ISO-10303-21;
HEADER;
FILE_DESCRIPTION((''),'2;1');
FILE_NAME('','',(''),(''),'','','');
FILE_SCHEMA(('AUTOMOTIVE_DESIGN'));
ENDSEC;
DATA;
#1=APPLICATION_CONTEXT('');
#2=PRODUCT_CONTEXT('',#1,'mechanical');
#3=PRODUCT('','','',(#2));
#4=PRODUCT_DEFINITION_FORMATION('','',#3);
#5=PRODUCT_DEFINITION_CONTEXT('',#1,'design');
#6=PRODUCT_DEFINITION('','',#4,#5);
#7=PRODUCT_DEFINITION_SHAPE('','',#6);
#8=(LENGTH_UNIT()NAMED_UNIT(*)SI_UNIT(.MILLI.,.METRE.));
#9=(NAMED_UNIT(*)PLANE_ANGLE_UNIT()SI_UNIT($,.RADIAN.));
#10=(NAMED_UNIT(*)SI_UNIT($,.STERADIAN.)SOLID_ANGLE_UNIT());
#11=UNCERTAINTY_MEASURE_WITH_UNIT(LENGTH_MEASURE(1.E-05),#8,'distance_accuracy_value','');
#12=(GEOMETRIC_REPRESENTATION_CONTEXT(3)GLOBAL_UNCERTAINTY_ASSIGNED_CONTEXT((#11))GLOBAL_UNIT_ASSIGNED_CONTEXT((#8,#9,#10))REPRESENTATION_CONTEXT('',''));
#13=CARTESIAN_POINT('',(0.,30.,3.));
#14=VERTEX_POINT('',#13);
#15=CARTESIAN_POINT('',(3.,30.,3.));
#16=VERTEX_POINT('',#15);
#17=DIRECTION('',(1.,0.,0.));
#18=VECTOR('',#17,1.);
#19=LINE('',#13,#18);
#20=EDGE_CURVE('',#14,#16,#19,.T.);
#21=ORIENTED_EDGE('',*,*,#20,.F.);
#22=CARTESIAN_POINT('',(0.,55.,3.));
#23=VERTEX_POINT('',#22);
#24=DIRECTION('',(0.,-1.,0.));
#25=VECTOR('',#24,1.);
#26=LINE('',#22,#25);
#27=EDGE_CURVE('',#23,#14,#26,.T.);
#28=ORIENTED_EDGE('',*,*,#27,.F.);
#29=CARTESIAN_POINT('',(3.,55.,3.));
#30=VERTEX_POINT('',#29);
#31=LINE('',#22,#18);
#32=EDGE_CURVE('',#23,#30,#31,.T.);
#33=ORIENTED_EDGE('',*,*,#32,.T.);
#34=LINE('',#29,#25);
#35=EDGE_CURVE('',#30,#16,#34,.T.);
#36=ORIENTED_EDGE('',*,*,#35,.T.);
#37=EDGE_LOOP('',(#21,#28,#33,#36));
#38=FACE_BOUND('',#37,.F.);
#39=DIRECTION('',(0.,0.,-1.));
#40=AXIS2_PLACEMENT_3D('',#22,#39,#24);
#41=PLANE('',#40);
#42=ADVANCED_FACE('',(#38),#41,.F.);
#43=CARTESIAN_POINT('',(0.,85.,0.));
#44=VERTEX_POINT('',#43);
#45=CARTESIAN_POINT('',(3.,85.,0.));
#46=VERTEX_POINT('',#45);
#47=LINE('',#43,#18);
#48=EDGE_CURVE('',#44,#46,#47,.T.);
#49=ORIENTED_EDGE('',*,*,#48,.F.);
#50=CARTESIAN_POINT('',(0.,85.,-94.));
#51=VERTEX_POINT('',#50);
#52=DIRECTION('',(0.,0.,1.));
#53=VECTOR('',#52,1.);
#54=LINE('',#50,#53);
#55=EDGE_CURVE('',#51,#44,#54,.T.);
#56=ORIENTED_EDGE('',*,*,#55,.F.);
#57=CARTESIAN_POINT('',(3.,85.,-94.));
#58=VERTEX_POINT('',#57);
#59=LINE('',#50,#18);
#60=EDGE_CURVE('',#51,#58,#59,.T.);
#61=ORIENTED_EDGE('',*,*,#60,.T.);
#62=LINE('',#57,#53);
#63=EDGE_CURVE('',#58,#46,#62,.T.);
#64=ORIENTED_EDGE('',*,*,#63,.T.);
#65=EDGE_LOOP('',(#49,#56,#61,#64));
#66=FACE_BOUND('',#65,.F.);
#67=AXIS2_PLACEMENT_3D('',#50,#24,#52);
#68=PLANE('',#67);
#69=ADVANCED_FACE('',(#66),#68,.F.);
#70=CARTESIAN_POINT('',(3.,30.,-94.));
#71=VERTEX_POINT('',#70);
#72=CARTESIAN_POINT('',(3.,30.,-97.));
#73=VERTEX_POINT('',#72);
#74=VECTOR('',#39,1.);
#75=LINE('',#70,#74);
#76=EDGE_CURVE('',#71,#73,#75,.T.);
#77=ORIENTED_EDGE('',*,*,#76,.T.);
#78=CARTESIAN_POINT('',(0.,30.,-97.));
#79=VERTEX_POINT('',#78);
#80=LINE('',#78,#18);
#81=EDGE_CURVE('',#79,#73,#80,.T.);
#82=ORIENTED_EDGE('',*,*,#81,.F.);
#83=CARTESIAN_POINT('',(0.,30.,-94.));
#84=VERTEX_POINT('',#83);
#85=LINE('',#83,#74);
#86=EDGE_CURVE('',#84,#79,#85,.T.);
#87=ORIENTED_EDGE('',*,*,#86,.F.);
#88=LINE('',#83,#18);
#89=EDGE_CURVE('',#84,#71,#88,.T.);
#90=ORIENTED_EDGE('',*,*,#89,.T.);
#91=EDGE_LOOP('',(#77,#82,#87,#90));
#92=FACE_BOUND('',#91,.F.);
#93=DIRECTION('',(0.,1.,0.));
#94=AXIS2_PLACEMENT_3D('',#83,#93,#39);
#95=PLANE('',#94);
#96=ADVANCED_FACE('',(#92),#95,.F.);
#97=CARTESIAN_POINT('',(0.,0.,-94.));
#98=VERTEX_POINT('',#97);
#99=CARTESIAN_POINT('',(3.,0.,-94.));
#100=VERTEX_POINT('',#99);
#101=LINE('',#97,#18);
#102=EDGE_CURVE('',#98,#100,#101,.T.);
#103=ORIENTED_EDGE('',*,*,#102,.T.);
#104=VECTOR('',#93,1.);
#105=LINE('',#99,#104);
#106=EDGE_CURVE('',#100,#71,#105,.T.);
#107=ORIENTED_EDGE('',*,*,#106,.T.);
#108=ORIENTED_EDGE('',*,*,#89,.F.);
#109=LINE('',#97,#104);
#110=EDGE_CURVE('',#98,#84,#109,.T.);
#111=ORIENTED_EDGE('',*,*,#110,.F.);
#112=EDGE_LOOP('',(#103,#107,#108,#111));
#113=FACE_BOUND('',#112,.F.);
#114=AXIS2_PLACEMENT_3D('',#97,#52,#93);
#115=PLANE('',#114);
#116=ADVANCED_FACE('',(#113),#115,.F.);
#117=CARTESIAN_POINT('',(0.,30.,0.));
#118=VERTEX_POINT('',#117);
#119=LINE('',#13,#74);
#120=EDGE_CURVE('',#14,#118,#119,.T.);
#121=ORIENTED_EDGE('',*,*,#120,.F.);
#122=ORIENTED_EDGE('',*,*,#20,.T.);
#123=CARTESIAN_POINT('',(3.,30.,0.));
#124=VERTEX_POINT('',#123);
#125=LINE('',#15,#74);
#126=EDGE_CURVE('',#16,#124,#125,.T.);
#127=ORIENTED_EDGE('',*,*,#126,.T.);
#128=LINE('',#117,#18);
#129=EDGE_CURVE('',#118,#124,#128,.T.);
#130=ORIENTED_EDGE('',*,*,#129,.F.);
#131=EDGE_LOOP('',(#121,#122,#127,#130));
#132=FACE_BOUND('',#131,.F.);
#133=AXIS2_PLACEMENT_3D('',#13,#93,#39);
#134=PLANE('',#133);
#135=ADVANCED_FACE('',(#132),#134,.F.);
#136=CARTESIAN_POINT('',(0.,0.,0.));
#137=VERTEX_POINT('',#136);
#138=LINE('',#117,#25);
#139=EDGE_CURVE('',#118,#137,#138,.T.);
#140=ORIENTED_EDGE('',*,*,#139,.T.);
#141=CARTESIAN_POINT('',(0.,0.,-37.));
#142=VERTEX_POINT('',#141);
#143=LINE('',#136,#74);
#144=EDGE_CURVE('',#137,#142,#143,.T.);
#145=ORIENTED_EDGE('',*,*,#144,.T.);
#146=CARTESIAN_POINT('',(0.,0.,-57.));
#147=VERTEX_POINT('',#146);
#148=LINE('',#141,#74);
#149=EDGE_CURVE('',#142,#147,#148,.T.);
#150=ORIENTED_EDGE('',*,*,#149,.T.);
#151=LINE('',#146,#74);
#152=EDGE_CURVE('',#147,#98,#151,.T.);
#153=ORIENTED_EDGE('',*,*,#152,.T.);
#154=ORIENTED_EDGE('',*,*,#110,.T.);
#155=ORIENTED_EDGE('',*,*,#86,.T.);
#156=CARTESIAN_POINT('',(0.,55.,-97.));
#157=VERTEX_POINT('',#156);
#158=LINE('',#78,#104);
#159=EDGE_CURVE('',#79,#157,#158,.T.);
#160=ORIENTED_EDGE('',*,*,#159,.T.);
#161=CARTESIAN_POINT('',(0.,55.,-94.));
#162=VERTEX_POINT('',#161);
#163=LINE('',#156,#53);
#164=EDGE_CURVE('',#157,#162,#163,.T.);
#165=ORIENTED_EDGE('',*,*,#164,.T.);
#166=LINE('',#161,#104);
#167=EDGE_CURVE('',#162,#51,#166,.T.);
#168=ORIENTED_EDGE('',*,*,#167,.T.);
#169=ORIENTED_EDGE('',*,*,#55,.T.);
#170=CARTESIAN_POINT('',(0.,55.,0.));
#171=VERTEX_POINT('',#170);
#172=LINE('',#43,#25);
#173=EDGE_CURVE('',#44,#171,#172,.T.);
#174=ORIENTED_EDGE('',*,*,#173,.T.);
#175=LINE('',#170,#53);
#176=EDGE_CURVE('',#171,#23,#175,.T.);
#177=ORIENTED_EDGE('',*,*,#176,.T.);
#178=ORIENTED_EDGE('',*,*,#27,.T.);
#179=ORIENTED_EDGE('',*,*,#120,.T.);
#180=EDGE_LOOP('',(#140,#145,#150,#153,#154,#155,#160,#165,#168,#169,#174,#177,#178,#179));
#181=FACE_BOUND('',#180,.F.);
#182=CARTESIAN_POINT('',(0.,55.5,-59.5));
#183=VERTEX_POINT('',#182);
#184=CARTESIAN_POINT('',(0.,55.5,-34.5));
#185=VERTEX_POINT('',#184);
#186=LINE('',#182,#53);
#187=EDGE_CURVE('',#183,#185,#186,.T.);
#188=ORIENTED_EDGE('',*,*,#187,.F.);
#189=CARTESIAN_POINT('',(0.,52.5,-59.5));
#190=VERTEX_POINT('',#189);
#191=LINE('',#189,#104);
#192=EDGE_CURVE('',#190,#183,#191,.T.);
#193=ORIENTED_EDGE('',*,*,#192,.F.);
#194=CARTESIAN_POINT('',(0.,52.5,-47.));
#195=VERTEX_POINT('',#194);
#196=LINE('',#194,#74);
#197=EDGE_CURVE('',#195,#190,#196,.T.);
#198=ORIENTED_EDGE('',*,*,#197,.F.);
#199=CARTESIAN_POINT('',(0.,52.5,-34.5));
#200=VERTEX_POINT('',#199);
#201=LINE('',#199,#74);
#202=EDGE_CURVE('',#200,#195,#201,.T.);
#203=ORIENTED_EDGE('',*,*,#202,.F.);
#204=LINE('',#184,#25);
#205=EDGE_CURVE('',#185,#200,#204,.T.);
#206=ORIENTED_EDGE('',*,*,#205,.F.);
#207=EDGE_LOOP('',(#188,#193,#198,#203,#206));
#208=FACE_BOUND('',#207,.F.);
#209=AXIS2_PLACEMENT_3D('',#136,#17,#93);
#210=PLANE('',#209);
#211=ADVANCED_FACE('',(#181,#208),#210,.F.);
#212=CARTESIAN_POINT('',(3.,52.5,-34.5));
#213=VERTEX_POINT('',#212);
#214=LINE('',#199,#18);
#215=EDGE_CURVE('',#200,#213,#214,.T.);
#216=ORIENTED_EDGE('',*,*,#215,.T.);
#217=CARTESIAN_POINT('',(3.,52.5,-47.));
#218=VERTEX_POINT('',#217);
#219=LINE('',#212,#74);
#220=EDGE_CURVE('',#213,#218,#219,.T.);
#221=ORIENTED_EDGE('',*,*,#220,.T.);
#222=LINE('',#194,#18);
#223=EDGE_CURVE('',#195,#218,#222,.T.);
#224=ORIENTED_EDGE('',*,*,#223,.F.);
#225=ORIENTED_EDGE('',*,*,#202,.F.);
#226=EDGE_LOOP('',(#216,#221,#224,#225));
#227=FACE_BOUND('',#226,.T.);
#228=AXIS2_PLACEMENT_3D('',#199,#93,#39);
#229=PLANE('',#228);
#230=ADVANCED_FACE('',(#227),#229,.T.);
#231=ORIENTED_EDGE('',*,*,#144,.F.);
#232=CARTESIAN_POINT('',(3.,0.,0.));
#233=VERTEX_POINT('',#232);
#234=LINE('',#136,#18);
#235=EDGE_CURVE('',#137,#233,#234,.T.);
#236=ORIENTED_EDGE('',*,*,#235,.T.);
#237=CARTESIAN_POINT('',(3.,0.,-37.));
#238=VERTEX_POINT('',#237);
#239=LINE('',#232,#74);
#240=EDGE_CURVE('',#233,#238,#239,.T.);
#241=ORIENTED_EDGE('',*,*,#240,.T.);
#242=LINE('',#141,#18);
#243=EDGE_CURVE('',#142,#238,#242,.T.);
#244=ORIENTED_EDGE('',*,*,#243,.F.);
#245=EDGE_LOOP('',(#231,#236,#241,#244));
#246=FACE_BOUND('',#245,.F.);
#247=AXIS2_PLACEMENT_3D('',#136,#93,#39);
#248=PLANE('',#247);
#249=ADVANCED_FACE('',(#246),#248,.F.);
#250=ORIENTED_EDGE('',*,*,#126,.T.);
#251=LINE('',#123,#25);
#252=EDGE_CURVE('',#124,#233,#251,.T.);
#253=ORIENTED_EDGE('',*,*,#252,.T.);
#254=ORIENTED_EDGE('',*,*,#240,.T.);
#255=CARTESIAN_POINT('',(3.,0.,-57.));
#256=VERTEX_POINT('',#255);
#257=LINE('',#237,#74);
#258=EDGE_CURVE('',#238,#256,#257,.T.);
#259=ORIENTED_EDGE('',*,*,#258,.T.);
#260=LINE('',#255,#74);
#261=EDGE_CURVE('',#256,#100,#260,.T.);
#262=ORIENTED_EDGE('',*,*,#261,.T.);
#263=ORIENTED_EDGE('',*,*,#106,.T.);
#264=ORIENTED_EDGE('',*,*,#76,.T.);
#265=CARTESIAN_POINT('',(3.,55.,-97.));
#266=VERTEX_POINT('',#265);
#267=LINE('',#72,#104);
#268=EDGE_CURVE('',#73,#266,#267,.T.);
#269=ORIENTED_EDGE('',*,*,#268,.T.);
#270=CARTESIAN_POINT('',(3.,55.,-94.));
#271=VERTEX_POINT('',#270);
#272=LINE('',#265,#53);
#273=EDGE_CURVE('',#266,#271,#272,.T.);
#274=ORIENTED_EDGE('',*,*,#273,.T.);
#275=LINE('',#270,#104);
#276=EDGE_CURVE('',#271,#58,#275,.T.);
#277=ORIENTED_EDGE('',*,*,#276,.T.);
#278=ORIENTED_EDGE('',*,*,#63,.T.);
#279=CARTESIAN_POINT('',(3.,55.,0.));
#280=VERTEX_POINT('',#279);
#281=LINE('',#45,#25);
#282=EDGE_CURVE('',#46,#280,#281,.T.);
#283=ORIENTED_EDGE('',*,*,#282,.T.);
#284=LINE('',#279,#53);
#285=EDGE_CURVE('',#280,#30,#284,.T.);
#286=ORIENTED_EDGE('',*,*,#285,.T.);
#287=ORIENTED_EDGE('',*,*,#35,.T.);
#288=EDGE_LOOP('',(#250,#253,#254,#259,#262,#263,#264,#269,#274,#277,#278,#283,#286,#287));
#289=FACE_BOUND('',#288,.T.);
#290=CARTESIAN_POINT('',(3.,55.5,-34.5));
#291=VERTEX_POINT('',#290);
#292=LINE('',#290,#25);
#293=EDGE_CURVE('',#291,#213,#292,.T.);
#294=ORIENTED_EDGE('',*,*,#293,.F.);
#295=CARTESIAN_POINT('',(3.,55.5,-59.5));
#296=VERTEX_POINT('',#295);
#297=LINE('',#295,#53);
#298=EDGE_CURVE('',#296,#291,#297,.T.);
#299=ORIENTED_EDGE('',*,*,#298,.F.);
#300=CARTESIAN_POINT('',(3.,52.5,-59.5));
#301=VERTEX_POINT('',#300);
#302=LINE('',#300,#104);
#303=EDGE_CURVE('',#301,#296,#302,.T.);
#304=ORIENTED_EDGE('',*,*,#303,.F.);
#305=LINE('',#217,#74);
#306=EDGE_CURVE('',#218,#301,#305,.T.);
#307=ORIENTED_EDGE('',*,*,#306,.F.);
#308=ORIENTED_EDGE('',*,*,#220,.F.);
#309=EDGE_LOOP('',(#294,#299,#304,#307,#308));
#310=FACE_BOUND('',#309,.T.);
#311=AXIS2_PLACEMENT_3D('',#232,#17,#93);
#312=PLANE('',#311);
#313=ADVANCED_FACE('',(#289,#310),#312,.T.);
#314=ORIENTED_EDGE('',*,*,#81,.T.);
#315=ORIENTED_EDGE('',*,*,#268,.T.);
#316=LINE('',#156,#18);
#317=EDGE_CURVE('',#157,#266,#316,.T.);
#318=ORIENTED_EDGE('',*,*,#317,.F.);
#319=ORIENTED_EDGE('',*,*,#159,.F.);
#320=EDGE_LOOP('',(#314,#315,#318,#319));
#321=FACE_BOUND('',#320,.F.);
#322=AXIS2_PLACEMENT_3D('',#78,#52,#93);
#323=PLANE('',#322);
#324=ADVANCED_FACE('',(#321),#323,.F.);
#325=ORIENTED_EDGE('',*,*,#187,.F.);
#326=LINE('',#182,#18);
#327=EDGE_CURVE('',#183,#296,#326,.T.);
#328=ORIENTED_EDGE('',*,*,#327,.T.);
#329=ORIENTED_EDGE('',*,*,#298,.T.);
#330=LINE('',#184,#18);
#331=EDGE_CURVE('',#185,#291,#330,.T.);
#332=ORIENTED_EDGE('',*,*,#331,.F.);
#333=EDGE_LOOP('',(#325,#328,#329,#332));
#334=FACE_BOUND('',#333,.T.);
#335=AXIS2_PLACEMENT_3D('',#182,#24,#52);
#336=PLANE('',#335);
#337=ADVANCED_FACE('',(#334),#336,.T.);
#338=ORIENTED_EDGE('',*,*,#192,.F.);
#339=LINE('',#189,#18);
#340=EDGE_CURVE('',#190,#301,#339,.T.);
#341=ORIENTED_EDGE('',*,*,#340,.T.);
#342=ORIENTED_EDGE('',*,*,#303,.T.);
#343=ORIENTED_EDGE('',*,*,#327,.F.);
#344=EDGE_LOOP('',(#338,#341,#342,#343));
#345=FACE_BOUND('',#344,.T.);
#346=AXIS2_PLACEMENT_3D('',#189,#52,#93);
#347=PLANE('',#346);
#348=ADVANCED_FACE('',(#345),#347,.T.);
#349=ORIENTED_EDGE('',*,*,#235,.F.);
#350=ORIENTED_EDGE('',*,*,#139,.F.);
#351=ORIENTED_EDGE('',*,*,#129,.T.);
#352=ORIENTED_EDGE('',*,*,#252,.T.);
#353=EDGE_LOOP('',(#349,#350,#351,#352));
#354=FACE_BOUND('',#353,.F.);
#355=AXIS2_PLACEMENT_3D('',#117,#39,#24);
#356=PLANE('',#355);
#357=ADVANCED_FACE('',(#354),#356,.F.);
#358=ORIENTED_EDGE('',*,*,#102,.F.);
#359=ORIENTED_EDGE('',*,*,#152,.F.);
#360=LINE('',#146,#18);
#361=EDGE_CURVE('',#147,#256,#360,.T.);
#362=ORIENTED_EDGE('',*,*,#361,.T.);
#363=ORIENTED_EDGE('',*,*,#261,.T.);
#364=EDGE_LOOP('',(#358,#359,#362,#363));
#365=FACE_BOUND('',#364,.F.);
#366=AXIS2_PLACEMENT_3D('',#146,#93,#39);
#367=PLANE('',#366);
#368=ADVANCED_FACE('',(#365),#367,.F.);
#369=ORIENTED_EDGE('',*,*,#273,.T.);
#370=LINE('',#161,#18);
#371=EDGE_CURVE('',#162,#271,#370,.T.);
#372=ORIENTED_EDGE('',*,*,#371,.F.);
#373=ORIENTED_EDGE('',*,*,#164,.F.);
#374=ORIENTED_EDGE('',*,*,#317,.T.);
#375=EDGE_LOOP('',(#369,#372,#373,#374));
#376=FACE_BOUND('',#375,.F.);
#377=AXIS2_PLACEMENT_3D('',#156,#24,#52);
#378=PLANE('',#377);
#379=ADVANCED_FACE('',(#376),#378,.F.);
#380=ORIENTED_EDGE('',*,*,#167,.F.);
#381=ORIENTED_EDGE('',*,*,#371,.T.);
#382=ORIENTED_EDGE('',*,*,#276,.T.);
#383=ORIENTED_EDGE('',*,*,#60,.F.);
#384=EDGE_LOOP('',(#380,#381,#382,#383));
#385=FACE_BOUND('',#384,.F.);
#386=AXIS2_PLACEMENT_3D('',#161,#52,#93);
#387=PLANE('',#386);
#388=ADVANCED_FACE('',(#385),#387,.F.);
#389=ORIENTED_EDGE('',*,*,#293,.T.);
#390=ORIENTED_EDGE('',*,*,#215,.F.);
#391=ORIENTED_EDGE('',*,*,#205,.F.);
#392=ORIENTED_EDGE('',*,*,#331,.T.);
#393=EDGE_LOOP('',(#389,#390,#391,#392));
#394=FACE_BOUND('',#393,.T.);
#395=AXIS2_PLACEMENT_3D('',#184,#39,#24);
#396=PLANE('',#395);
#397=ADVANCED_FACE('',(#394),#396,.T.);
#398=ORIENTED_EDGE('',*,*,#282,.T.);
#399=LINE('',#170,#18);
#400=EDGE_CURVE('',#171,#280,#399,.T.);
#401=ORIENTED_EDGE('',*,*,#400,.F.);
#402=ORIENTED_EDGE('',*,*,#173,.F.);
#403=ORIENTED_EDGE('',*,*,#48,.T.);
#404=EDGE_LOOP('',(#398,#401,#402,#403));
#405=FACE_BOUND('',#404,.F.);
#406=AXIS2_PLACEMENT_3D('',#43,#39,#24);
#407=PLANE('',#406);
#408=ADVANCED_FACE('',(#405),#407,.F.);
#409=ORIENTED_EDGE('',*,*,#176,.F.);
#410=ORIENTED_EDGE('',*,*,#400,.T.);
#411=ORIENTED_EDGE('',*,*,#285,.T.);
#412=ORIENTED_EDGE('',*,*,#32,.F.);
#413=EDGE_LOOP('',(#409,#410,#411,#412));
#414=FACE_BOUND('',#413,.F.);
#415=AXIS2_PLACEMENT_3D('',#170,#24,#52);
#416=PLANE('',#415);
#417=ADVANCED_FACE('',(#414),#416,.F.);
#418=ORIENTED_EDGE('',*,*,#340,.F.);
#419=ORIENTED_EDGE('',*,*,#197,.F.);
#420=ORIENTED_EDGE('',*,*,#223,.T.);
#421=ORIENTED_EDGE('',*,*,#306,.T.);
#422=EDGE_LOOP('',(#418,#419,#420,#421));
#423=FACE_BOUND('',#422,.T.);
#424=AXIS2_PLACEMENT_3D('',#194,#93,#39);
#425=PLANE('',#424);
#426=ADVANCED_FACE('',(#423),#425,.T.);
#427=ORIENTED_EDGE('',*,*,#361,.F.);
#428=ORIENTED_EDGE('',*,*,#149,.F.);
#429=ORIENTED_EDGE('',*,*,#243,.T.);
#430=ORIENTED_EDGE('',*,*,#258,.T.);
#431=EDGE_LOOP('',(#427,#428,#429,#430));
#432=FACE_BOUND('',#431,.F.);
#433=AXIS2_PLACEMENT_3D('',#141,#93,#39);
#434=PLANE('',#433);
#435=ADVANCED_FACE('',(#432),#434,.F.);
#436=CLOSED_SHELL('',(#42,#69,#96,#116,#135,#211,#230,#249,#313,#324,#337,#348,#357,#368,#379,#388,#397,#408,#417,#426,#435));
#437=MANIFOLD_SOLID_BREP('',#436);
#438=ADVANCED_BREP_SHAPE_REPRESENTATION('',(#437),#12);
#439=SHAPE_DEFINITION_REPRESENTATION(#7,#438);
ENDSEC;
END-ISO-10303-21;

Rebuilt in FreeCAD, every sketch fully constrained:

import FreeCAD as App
import Part
import Sketcher
Q = App.Units.Quantity

doc = App.newDocument("Part")
body = doc.addObject("PartDesign::Body", "Body")

sketch1 = doc.addObject("Sketcher::SketchObject", "Sketch")
body.addObject(sketch1)
sketch1.AttachmentSupport = (doc.YZ_Plane, [""])
sketch1.MapMode = "FlatFace"
sketch1.addGeometry(Part.LineSegment(App.Vector(0, 0, 0), App.Vector(0, -94, 0)), False)
sketch1.addGeometry(Part.LineSegment(App.Vector(0, -94, 0), App.Vector(30, -94, 0)), False)
sketch1.addGeometry(Part.LineSegment(App.Vector(30, -94, 0), App.Vector(30, -97, 0)), False)
sketch1.addGeometry(Part.LineSegment(App.Vector(30, -97, 0), App.Vector(55, -97, 0)), False)
sketch1.addGeometry(Part.LineSegment(App.Vector(55, -97, 0), App.Vector(55, -94, 0)), False)
sketch1.addGeometry(Part.LineSegment(App.Vector(55, -94, 0), App.Vector(85, -94, 0)), False)
sketch1.addGeometry(Part.LineSegment(App.Vector(85, -94, 0), App.Vector(85, 0, 0)), False)
sketch1.addGeometry(Part.LineSegment(App.Vector(85, 0, 0), App.Vector(55, 0, 0)), False)
sketch1.addGeometry(Part.LineSegment(App.Vector(55, 0, 0), App.Vector(55, 3, 0)), False)
sketch1.addGeometry(Part.LineSegment(App.Vector(55, 3, 0), App.Vector(30, 3, 0)), False)
sketch1.addGeometry(Part.LineSegment(App.Vector(30, 3, 0), App.Vector(30, 0, 0)), False)
sketch1.addGeometry(Part.LineSegment(App.Vector(30, 0, 0), App.Vector(0, 0, 0)), False)
sketch1.addGeometry(Part.LineSegment(App.Vector(52.5, -59.5, 0), App.Vector(52.5, -34.5, 0)), False)
sketch1.addGeometry(Part.LineSegment(App.Vector(52.5, -34.5, 0), App.Vector(55.5, -34.5, 0)), False)
sketch1.addGeometry(Part.LineSegment(App.Vector(55.5, -34.5, 0), App.Vector(55.5, -59.5, 0)), False)
sketch1.addGeometry(Part.LineSegment(App.Vector(55.5, -59.5, 0), App.Vector(52.5, -59.5, 0)), False)
sketch1.addConstraint(Sketcher.Constraint("Coincident", 0, 2, 1, 1))
sketch1.addConstraint(Sketcher.Constraint("Coincident", 1, 2, 2, 1))
sketch1.addConstraint(Sketcher.Constraint("Coincident", 2, 2, 3, 1))
sketch1.addConstraint(Sketcher.Constraint("Coincident", 3, 2, 4, 1))
sketch1.addConstraint(Sketcher.Constraint("Coincident", 4, 2, 5, 1))
sketch1.addConstraint(Sketcher.Constraint("Coincident", 5, 2, 6, 1))
sketch1.addConstraint(Sketcher.Constraint("Coincident", 6, 2, 7, 1))
sketch1.addConstraint(Sketcher.Constraint("Coincident", 7, 2, 8, 1))
sketch1.addConstraint(Sketcher.Constraint("Coincident", 8, 2, 9, 1))
sketch1.addConstraint(Sketcher.Constraint("Coincident", 9, 2, 10, 1))
sketch1.addConstraint(Sketcher.Constraint("Coincident", 10, 2, 11, 1))
sketch1.addConstraint(Sketcher.Constraint("Coincident", 11, 2, 0, 1))
sketch1.addConstraint(Sketcher.Constraint("Coincident", 12, 2, 13, 1))
sketch1.addConstraint(Sketcher.Constraint("Coincident", 13, 2, 14, 1))
sketch1.addConstraint(Sketcher.Constraint("Coincident", 14, 2, 15, 1))
sketch1.addConstraint(Sketcher.Constraint("Coincident", 15, 2, 12, 1))
sketch1.addConstraint(Sketcher.Constraint("Vertical", 0))
sketch1.addConstraint(Sketcher.Constraint("Horizontal", 1))
sketch1.addConstraint(Sketcher.Constraint("Vertical", 2))
sketch1.addConstraint(Sketcher.Constraint("Horizontal", 3))
sketch1.addConstraint(Sketcher.Constraint("Vertical", 4))
sketch1.addConstraint(Sketcher.Constraint("Horizontal", 5))
sketch1.addConstraint(Sketcher.Constraint("Vertical", 6))
sketch1.addConstraint(Sketcher.Constraint("Horizontal", 7))
sketch1.addConstraint(Sketcher.Constraint("Vertical", 8))
sketch1.addConstraint(Sketcher.Constraint("Horizontal", 9))
sketch1.addConstraint(Sketcher.Constraint("Vertical", 10))
sketch1.addConstraint(Sketcher.Constraint("Horizontal", 11))
sketch1.addConstraint(Sketcher.Constraint("Vertical", 12))
sketch1.addConstraint(Sketcher.Constraint("Horizontal", 13))
sketch1.addConstraint(Sketcher.Constraint("Vertical", 14))
sketch1.addConstraint(Sketcher.Constraint("Horizontal", 15))
sketch1.addConstraint(Sketcher.Constraint("Coincident", 11, 2, -1, 1))
sketch1.addConstraint(Sketcher.Constraint("PointOnObject", 6, 2, -1))
sketch1.addConstraint(Sketcher.Constraint("Horizontal", 1, 2, 4, 2))
sketch1.addConstraint(Sketcher.Constraint("Vertical", 4, 2, 7, 2))
sketch1.addConstraint(Sketcher.Constraint("Vertical", 2, 2, 9, 2))
sketch1.addConstraint(Sketcher.Constraint("Equal", 1, 5))
sketch1.addConstraint(Sketcher.Constraint("Equal", 15, 2))
sketch1.addConstraint(Sketcher.Constraint("Equal", 4, 8))
sketch1.addConstraint(Sketcher.Constraint("Equal", 9, 12))
sketch1.addConstraint(Sketcher.Constraint("DistanceX", 1, 1, 1, 2, Q("30 mm")))
sketch1.addConstraint(Sketcher.Constraint("DistanceX", 3, 1, 3, 2, Q("25 mm")))
sketch1.addConstraint(Sketcher.Constraint("DistanceX", 13, 1, 13, 2, Q("3 mm")))
sketch1.addConstraint(Sketcher.Constraint("DistanceY", 0, 2, 0, 1, Q("94 mm")))
sketch1.addConstraint(Sketcher.Constraint("DistanceX", -1, 1, 12, 2, Q("52.5 mm")))
sketch1.addConstraint(Sketcher.Constraint("DistanceY", 12, 2, -1, 1, Q("34.5 mm")))
pad1 = doc.addObject("PartDesign::Pad", "Pad")
body.addObject(pad1)
pad1.Profile = sketch1
pad1.Length = 3

doc.recompute()
